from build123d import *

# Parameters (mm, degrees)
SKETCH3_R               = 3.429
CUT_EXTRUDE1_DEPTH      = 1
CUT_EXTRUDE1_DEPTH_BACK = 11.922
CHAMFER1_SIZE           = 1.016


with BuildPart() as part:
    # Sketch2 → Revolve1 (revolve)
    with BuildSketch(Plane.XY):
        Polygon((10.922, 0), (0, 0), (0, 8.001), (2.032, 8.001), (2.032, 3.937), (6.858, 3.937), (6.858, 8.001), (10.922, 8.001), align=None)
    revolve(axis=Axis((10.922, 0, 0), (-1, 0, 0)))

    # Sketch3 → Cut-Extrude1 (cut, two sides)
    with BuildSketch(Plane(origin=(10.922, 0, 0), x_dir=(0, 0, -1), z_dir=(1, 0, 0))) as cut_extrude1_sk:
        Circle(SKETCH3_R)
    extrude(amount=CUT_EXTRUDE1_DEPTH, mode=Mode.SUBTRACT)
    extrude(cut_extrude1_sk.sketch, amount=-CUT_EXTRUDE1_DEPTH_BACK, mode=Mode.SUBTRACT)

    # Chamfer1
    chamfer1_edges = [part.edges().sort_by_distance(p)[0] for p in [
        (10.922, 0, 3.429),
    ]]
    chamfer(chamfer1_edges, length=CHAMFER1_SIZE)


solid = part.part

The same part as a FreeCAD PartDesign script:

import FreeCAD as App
import Part
import Sketcher
from FreeCAD import Vector
Q = App.Units.Quantity


def edges_at(feature, points):
    """Names of the edges that pass closest to the given points."""
    edges = feature.Shape.Edges
    near = lambda p: min(range(len(edges)), key=lambda i: edges[i].distToShape(Part.Vertex(*p))[0])
    return sorted({f"Edge{near(p) + 1}" for p in points})

doc = App.newDocument("Part")
params = doc.addObject("Spreadsheet::Sheet", "Params")
for row, (alias, value) in enumerate([
    ("sketch1_width", "0.43 in"),
    ("sketch1_width2", "0.16 in"),
    ("sketch1_width3", "0.19 in"),
    ("sketch1_height", "0.315 in"),
    ("revolution_angle", "360 deg"),
    ("sketch2_diameter", "0.27 in"),
    ("chamfer_size", "0.04 in"),
], start=1):
    params.set(f"A{row}", alias)
    params.set(f"B{row}", "=" + value)
    params.setAlias(f"B{row}", alias)

body = doc.addObject("PartDesign::Body", "Body")

# Sketch on XY plane
sketch1 = body.newObject("Sketcher::SketchObject", "Sketch")
sketch1.AttachmentSupport = (doc.getObject("XY_Plane"), [""])
sketch1.MapMode = "FlatFace"
sketch1.addGeometry([
    Part.LineSegment(Vector(0, 0, 0), Vector(10.922, 0, 0)),  # 0
    Part.LineSegment(Vector(10.922, 0, 0), Vector(10.922, 8.001, 0)),  # 1
    Part.LineSegment(Vector(10.922, 8.001, 0), Vector(6.858, 8.001, 0)),  # 2
    Part.LineSegment(Vector(6.858, 8.001, 0), Vector(6.858, 3.937, 0)),  # 3
    Part.LineSegment(Vector(6.858, 3.937, 0), Vector(2.032, 3.937, 0)),  # 4
    Part.LineSegment(Vector(2.032, 3.937, 0), Vector(2.032, 8.001, 0)),  # 5
    Part.LineSegment(Vector(2.032, 8.001, 0), Vector(0, 8.001, 0)),  # 6
    Part.LineSegment(Vector(0, 8.001, 0), Vector(0, 0, 0)),  # 7
], False)
sketch1.addConstraint([
    Sketcher.Constraint("Coincident", 0, 2, 1, 1),
    Sketcher.Constraint("Coincident", 1, 2, 2, 1),
    Sketcher.Constraint("Coincident", 2, 2, 3, 1),
    Sketcher.Constraint("Coincident", 3, 2, 4, 1),
    Sketcher.Constraint("Coincident", 4, 2, 5, 1),
    Sketcher.Constraint("Coincident", 5, 2, 6, 1),
    Sketcher.Constraint("Coincident", 6, 2, 7, 1),
    Sketcher.Constraint("Coincident", 7, 2, 0, 1),
    Sketcher.Constraint("Horizontal", 0),
    Sketcher.Constraint("Vertical", 1),
    Sketcher.Constraint("Horizontal", 2),
    Sketcher.Constraint("Vertical", 3),
    Sketcher.Constraint("Horizontal", 4),
    Sketcher.Constraint("Vertical", 5),
    Sketcher.Constraint("Horizontal", 6),
    Sketcher.Constraint("Vertical", 7),
    Sketcher.Constraint("Coincident", 7, 2, -1, 1),
    Sketcher.Constraint("Horizontal", 2, 2, 5, 2),
    Sketcher.Constraint("Equal", 2, 3),
    Sketcher.Constraint("DistanceX", 0, 1, 0, 2, Q("0.43 in")),
    Sketcher.Constraint("DistanceX", 2, 2, 2, 1, Q("0.16 in")),
    Sketcher.Constraint("DistanceX", 4, 2, 4, 1, Q("0.19 in")),
    Sketcher.Constraint("DistanceY", 1, 1, 1, 2, Q("0.315 in")),
])
sketch1.setExpression("Constraints[19]", "Params.sketch1_width")
sketch1.setExpression("Constraints[20]", "Params.sketch1_width2")
sketch1.setExpression("Constraints[21]", "Params.sketch1_width3")
sketch1.setExpression("Constraints[22]", "Params.sketch1_height")
revolution = body.newObject("PartDesign::Revolution", "Revolution")
revolution.Profile = sketch1
revolution.ReferenceAxis = (sketch1, ["H_Axis"])
revolution.setExpression("Angle", "Params.revolution_angle")

# Sketch on YZ plane
sketch2 = body.newObject("Sketcher::SketchObject", "Sketch001")
sketch2.AttachmentSupport = (doc.getObject("YZ_Plane"), [""])
sketch2.MapMode = "FlatFace"
sketch2.AttachmentOffset = App.Placement(Vector(0, 0, 0.43 * 25.4), App.Rotation())
sketch2.addGeometry(Part.Circle(Vector(0, 0, 0), Vector(0, 0, 1), 3.429), False)
sketch2.addConstraint([
    Sketcher.Constraint("Coincident", 0, 3, -1, 1),
    Sketcher.Constraint("Diameter", 0, Q("0.27 in")),
])
sketch2.setExpression("Constraints[1]", "Params.sketch2_diameter")
pocket1 = body.newObject("PartDesign::Pocket", "Pocket")
pocket1.Profile = sketch2
pocket1.Type = "ThroughAll"
pocket1.Midplane = True
doc.recompute()

chamfer = body.newObject("PartDesign::Chamfer", "Chamfer")
chamfer.Base = (pocket1, edges_at(pocket1, [(10.922, 0, 3.429)]))
chamfer.setExpression("Size", "Params.chamfer_size")

doc.recompute()
